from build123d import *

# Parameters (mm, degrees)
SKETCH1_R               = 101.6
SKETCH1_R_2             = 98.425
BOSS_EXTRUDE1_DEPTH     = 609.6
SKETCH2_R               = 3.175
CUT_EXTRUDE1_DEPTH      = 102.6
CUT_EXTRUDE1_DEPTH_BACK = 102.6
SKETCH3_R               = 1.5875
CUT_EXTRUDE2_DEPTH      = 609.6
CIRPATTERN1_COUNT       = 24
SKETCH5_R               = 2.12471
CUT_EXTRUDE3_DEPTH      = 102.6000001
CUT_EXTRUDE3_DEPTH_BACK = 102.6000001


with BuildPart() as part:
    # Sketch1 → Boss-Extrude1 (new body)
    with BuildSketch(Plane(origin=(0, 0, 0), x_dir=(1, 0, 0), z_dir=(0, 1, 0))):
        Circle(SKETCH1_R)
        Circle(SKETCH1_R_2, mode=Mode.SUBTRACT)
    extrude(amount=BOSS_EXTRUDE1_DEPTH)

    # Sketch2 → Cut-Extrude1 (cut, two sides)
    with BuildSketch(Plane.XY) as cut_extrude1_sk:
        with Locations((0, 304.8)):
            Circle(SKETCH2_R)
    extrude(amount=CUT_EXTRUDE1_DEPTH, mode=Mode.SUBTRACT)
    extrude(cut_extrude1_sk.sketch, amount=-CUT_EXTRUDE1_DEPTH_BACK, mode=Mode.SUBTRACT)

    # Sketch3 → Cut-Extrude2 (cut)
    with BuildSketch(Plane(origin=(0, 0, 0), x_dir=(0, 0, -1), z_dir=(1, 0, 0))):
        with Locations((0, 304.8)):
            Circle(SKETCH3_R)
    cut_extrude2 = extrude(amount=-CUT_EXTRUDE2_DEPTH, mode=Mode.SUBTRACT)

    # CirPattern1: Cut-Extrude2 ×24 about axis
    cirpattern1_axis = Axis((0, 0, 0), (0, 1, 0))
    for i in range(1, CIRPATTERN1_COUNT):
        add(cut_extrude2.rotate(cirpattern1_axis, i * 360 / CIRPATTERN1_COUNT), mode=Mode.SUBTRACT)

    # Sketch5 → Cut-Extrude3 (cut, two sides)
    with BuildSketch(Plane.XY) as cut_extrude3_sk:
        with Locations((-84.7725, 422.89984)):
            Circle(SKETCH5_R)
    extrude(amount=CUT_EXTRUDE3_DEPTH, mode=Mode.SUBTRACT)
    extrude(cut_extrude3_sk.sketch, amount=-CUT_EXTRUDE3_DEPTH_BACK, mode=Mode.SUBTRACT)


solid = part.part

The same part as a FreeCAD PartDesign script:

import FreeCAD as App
import Part
import Sketcher
Q = App.Units.Quantity

doc = App.newDocument("Part")
body = doc.addObject("PartDesign::Body", "Body")

# Sketch on XZ plane
sketch1 = body.newObject("Sketcher::SketchObject", "Sketch")
sketch1.AttachmentSupport = (doc.getObject("XZ_Plane"), [""])
sketch1.MapMode = "FlatFace"
sketch1.addGeometry([
    Part.Circle(App.Vector(0, 0, 0), App.Vector(0, 0, 1), 101.6),
    Part.Circle(App.Vector(0, 0, 0), App.Vector(0, 0, 1), 98.425),
], False)
sketch1.addConstraint([
    Sketcher.Constraint("Coincident", 0, 3, -1, 1),
    Sketcher.Constraint("Coincident", 1, 3, -1, 1),
    Sketcher.Constraint("Diameter", 0, Q("8 in")),
    Sketcher.Constraint("Diameter", 1, Q("7.75 in")),
])
pad1 = body.newObject("PartDesign::Pad", "Pad")
pad1.Profile = sketch1
pad1.Length = Q("24 in")
pad1.Reversed = True

# Sketch on XY plane
sketch2 = body.newObject("Sketcher::SketchObject", "Sketch001")
sketch2.AttachmentSupport = (doc.getObject("XY_Plane"), [""])
sketch2.MapMode = "FlatFace"
sketch2.addGeometry(Part.Circle(App.Vector(0, 304.8, 0), App.Vector(0, 0, 1), 3.175), False)
sketch2.addConstraint([
    Sketcher.Constraint("PointOnObject", 0, 3, -2),
    Sketcher.Constraint("Diameter", 0, Q("0.25 in")),
    Sketcher.Constraint("DistanceY", -1, 1, 0, 3, Q("12 in")),
])
pocket1 = body.newObject("PartDesign::Pocket", "Pocket")
pocket1.Profile = sketch2
pocket1.Type = "ThroughAll"
pocket1.Midplane = True

# Sketch on YZ plane
sketch3 = body.newObject("Sketcher::SketchObject", "Sketch002")
sketch3.AttachmentSupport = (doc.getObject("YZ_Plane"), [""])
sketch3.MapMode = "FlatFace"
sketch3.addGeometry(Part.Circle(App.Vector(304.8, 0, 0), App.Vector(0, 0, 1), 1.5875), False)
sketch3.addConstraint([
    Sketcher.Constraint("PointOnObject", 0, 3, -1),
    Sketcher.Constraint("Diameter", 0, Q("0.125 in")),
    Sketcher.Constraint("DistanceX", -1, 1, 0, 3, Q("12 in")),
])
pocket2 = body.newObject("PartDesign::Pocket", "Pocket001")
pocket2.Profile = sketch3
pocket2.Length = Q("24 in")
doc.recompute()

polarpattern = body.newObject("PartDesign::PolarPattern", "PolarPattern")
polarpattern.Originals = [pocket2]
polarpattern.Axis = (doc.getObject("Y_Axis"), [""])
polarpattern.Angle = 360
polarpattern.Occurrences = 24
body.Tip = polarpattern

# Sketch on XY plane
sketch4 = body.newObject("Sketcher::SketchObject", "Sketch003")
sketch4.AttachmentSupport = (doc.getObject("XY_Plane"), [""])
sketch4.MapMode = "FlatFace"
sketch4.addGeometry(Part.Circle(App.Vector(-84.7725, 422.89984, 0), App.Vector(0, 0, 1), 2.12471), False)
sketch4.addConstraint([
    Sketcher.Constraint("Diameter", 0, Q("0.1673 in")),
    Sketcher.Constraint("DistanceX", 0, 3, -1, 1, Q("3.3375 in")),
    Sketcher.Constraint("DistanceY", -1, 1, 0, 3, Q("16.6496 in")),
])
pocket3 = body.newObject("PartDesign::Pocket", "Pocket002")
pocket3.Profile = sketch4
pocket3.Type = "ThroughAll"
pocket3.Midplane = True

doc.recompute()
